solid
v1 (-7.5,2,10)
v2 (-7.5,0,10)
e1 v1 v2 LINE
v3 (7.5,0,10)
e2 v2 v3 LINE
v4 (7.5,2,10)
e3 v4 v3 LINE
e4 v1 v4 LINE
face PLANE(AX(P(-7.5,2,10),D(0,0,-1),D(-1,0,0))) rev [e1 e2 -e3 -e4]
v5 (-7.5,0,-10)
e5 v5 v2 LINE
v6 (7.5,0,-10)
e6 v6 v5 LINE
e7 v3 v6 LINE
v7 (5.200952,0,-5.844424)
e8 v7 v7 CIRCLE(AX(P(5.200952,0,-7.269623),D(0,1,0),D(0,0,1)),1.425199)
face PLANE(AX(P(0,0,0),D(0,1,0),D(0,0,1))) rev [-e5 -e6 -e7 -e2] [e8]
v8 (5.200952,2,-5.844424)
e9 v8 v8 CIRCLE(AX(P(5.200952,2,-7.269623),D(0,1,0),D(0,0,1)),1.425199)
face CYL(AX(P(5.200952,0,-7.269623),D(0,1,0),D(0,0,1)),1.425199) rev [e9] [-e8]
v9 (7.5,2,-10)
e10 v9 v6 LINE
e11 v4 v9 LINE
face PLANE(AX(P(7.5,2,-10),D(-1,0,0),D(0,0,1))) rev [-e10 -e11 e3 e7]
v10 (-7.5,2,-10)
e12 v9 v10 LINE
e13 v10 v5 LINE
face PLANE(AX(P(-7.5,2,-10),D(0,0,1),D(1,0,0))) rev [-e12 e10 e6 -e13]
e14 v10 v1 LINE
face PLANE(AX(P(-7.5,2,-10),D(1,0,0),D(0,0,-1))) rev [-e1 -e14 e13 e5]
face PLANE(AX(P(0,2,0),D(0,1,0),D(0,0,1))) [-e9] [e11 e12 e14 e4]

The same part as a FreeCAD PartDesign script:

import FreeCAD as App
import Part
import Sketcher

V = App.Vector

doc = App.newDocument("Part")
body = doc.addObject("PartDesign::Body", "Body")

# Sketch on XZ plane
sketch1 = doc.addObject("Sketcher::SketchObject", "Sketch")
body.addObject(sketch1)
sketch1.AttachmentSupport = (doc.XZ_Plane, [""])
sketch1.MapMode = "FlatFace"
sketch1.addGeometry(Part.LineSegment(V(-7.5, -10, 0), V(-7.5, 10, 0)), False)
sketch1.addGeometry(Part.LineSegment(V(-7.5, 10, 0), V(7.5, 10, 0)), False)
sketch1.addGeometry(Part.LineSegment(V(7.5, 10, 0), V(7.5, -10, 0)), False)
sketch1.addGeometry(Part.LineSegment(V(7.5, -10, 0), V(-7.5, -10, 0)), False)
sketch1.addConstraint(Sketcher.Constraint("Coincident", 0, 2, 1, 1))
sketch1.addConstraint(Sketcher.Constraint("Coincident", 1, 2, 2, 1))
sketch1.addConstraint(Sketcher.Constraint("Coincident", 2, 2, 3, 1))
sketch1.addConstraint(Sketcher.Constraint("Coincident", 3, 2, 0, 1))
sketch1.addConstraint(Sketcher.Constraint("Vertical", 0))
sketch1.addConstraint(Sketcher.Constraint("Horizontal", 1))
sketch1.addConstraint(Sketcher.Constraint("Vertical", 2))
sketch1.addConstraint(Sketcher.Constraint("Horizontal", 3))
sketch1.addConstraint(Sketcher.Constraint("Symmetric", 0, 2, 2, 2, -1, 1))
sketch1.addConstraint(Sketcher.Constraint("DistanceX", 1, 1, 1, 2, 15.0))
sketch1.addConstraint(Sketcher.Constraint("DistanceY", 0, 1, 0, 2, 20.0))
pad1 = doc.addObject("PartDesign::Pad", "Pad")
body.addObject(pad1)
pad1.Profile = sketch1
pad1.Length = 2
pad1.Reversed = True

# Sketch on XZ plane
sketch2 = doc.addObject("Sketcher::SketchObject", "Sketch001")
body.addObject(sketch2)
sketch2.AttachmentSupport = (doc.XZ_Plane, [""])
sketch2.MapMode = "FlatFace"
sketch2.AttachmentOffset = App.Placement(V(0, 0, -2), App.Rotation())
sketch2.addGeometry(Part.Circle(V(5.200952, -7.269623, 0), V(0, 0, 1), 1.425199), False)
sketch2.addConstraint(Sketcher.Constraint("Diameter", 0, 2.850398))
sketch2.addConstraint(Sketcher.Constraint("DistanceX", -1, 1, 0, 3, 5.200952))
sketch2.addConstraint(Sketcher.Constraint("DistanceY", 0, 3, -1, 1, 7.269623))
pocket1 = doc.addObject("PartDesign::Pocket", "Pocket")
body.addObject(pocket1)
pocket1.Profile = sketch2
pocket1.Type = "ThroughAll"
pocket1.Reversed = True

doc.recompute()
